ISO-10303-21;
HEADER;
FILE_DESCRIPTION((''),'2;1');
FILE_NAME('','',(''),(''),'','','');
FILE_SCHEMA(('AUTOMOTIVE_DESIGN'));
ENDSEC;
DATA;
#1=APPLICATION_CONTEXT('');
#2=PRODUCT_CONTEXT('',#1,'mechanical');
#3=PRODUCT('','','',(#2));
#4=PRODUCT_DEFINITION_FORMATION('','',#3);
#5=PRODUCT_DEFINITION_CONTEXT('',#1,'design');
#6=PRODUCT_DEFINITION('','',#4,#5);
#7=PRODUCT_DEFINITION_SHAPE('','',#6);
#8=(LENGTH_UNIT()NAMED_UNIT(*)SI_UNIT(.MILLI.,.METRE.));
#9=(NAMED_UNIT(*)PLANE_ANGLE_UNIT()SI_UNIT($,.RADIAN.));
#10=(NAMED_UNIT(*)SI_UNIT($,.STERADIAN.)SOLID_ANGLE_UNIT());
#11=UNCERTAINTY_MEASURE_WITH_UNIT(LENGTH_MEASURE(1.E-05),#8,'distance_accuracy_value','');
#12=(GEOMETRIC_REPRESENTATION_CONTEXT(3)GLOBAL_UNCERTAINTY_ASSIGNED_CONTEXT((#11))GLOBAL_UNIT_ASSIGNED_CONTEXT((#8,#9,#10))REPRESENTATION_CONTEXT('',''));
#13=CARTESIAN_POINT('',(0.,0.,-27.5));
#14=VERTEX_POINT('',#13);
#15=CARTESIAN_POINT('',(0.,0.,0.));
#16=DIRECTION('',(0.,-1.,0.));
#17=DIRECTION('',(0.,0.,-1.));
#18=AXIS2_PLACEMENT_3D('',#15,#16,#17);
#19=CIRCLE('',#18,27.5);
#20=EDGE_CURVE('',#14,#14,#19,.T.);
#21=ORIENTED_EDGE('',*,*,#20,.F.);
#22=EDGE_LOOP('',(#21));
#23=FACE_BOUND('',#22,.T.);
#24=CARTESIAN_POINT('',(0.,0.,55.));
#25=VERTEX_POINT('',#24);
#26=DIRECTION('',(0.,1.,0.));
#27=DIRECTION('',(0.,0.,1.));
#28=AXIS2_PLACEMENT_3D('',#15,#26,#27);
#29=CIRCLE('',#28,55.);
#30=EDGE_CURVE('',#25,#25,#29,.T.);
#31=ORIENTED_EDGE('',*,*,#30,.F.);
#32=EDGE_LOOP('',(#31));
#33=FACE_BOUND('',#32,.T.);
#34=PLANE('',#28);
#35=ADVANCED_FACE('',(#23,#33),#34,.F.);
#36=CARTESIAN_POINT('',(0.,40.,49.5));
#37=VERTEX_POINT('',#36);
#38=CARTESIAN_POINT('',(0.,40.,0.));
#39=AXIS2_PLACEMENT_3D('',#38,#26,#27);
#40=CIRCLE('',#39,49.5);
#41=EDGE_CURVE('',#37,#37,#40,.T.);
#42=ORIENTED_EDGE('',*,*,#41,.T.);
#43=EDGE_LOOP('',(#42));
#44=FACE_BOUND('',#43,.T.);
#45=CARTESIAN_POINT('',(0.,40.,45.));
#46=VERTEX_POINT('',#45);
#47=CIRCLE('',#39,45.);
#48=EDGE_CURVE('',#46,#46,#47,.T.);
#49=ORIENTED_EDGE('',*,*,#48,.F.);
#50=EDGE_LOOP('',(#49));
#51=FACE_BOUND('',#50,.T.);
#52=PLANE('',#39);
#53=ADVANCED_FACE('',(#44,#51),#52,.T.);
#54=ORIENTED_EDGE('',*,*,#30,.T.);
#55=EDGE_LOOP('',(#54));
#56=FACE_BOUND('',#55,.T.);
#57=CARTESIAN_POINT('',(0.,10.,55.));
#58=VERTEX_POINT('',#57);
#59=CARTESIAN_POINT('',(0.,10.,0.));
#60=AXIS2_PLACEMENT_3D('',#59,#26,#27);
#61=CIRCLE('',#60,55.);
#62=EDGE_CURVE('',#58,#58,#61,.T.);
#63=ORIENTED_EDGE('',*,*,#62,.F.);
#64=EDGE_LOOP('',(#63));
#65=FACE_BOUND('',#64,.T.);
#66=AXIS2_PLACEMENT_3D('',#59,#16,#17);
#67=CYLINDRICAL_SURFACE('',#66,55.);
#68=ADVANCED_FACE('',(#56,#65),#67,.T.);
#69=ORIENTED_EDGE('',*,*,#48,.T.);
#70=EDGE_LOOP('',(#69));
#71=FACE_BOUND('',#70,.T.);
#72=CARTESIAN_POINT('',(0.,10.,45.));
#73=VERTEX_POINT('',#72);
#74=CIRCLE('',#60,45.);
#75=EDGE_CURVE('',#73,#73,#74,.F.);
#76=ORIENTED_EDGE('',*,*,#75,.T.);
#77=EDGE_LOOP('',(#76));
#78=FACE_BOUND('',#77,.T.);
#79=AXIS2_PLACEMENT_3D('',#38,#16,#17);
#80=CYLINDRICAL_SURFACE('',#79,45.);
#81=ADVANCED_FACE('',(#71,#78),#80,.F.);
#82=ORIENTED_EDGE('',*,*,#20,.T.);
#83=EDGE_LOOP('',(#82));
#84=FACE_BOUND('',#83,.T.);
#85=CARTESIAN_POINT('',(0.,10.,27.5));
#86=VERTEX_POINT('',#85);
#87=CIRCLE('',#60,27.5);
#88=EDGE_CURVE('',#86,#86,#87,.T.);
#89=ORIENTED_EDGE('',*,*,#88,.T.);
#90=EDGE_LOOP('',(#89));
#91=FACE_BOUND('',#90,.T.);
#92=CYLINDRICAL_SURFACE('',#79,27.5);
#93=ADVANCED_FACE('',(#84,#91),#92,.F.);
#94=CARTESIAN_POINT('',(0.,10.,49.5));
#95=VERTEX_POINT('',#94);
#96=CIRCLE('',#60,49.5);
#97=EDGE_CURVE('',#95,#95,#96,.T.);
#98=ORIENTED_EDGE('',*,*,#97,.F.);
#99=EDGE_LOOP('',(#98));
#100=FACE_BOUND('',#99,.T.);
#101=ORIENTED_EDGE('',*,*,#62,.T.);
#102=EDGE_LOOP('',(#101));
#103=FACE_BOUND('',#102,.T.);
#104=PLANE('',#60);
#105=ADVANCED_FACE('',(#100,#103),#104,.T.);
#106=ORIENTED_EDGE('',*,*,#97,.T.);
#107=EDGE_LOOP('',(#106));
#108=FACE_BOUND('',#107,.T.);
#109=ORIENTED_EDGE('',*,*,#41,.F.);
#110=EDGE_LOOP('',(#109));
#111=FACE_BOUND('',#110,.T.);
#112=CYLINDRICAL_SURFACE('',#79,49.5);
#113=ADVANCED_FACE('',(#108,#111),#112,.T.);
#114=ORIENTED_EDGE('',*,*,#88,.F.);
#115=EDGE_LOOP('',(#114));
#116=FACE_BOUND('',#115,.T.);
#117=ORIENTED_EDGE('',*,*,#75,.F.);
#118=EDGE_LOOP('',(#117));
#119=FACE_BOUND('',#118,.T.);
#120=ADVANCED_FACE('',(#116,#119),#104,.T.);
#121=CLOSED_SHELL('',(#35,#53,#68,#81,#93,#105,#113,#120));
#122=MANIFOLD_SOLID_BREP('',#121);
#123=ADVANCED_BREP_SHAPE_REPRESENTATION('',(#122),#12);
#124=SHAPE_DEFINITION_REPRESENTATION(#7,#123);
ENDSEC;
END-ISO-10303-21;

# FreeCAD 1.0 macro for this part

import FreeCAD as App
import Part
import Sketcher
Q = App.Units.Quantity

doc = App.newDocument("Part")
body = doc.addObject("PartDesign::Body", "Body")

# Sketch on XZ plane
sketch1 = body.newObject("Sketcher::SketchObject", "Sketch")
sketch1.AttachmentSupport = (doc.getObject("XZ_Plane"), [""])
sketch1.MapMode = "FlatFace"
sketch1.addGeometry(Part.Circle(App.Vector(0, 0, 0), App.Vector(0, 0, 1), 55), False)
sketch1.addConstraint([
    Sketcher.Constraint("Coincident", 0, 3, -1, 1),
    Sketcher.Constraint("Diameter", 0, Q("110 mm")),
])
pad1 = body.newObject("PartDesign::Pad", "Pad")
pad1.Profile = sketch1
pad1.Length = 10
pad1.Reversed = True

# Sketch on XZ plane
sketch2 = body.newObject("Sketcher::SketchObject", "Sketch001")
sketch2.AttachmentSupport = (doc.getObject("XZ_Plane"), [""])
sketch2.MapMode = "FlatFace"
sketch2.AttachmentOffset = App.Placement(App.Vector(0, 0, -10), App.Rotation())
sketch2.addGeometry([
    Part.Circle(App.Vector(0, 0, 0), App.Vector(0, 0, 1), 49.5),
    Part.Circle(App.Vector(0, 0, 0), App.Vector(0, 0, 1), 45),
], False)
sketch2.addConstraint([
    Sketcher.Constraint("Coincident", 0, 3, -1, 1),
    Sketcher.Constraint("Coincident", 1, 3, -1, 1),
    Sketcher.Constraint("Diameter", 0, Q("99 mm")),
    Sketcher.Constraint("Diameter", 1, Q("90 mm")),
])
pad2 = body.newObject("PartDesign::Pad", "Pad001")
pad2.Profile = sketch2
pad2.Length = 30
pad2.Reversed = True

# Sketch on XZ plane
sketch3 = body.newObject("Sketcher::SketchObject", "Sketch002")
sketch3.AttachmentSupport = (doc.getObject("XZ_Plane"), [""])
sketch3.MapMode = "FlatFace"
sketch3.addGeometry(Part.Circle(App.Vector(0, 0, 0), App.Vector(0, 0, 1), 27.5), False)
sketch3.addConstraint([
    Sketcher.Constraint("Coincident", 0, 3, -1, 1),
    Sketcher.Constraint("Diameter", 0, Q("55 mm")),
])
pocket1 = body.newObject("PartDesign::Pocket", "Pocket")
pocket1.Profile = sketch3
pocket1.Type = "ThroughAll"

doc.recompute()
